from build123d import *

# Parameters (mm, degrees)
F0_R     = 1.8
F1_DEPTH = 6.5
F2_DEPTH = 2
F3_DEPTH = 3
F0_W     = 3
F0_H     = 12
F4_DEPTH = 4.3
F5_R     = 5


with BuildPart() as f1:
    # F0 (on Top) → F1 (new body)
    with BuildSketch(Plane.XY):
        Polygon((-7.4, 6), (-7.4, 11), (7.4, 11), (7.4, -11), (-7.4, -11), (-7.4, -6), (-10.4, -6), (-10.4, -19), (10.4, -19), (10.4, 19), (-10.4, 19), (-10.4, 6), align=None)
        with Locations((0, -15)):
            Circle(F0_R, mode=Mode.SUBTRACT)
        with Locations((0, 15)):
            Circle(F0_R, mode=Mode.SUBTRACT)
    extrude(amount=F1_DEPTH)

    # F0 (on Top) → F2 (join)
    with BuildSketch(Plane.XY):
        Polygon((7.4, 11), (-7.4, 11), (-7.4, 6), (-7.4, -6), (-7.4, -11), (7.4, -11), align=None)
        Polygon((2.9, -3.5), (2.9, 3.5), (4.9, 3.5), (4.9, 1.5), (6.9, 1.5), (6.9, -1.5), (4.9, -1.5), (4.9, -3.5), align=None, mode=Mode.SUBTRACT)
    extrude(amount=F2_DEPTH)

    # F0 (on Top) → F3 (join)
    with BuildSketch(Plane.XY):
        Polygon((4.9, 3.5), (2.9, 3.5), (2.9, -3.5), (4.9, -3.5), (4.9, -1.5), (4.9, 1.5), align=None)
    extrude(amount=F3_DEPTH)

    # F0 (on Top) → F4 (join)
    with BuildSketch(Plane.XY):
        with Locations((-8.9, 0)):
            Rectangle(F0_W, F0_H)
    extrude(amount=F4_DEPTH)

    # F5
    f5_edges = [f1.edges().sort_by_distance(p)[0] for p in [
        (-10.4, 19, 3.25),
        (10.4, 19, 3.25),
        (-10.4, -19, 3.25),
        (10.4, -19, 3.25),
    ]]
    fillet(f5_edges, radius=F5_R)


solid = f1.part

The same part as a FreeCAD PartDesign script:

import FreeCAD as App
import Part
import Sketcher

V = App.Vector
Q = App.Units.Quantity


def edges_at(feature, points):
    """Names of the edges that pass closest to the given points."""
    edges = feature.Shape.Edges
    near = lambda p: min(range(len(edges)), key=lambda i: edges[i].distToShape(Part.Vertex(*p))[0])
    return sorted({f"Edge{near(p) + 1}" for p in points})


def add_polygon(sketch, points):
    """Adds a closed chain of lines whose ends are joined by coincident constraints."""
    first, n = sketch.GeometryCount, len(points)
    for a, b in zip(points, points[1:] + points[:1]):
        sketch.addGeometry(Part.LineSegment(App.Vector(*a, 0), App.Vector(*b, 0)), False)
    for i in range(n):
        sketch.addConstraint(Sketcher.Constraint("Coincident", first + i, 2, first + (i + 1) % n, 1))

doc = App.newDocument("Part")
body = doc.addObject("PartDesign::Body", "Body")

# Sketch on XY plane
sketch1 = body.newObject("Sketcher::SketchObject", "Sketch")
sketch1.AttachmentSupport = (doc.getObject("XY_Plane"), [""])
sketch1.MapMode = "FlatFace"
add_polygon(sketch1, [(-7.4, 6), (-7.4, 11), (7.4, 11), (7.4, -11), (-7.4, -11), (-7.4, -6), (-10.4, -6), (-10.4, -19), (10.4, -19), (10.4, 19), (-10.4, 19), (-10.4, 6)])  # lines 0-11
sketch1.addGeometry(Part.Circle(V(0, -15, 0), V(0, 0, 1), 1.8), False)  # 12
sketch1.addGeometry(Part.Circle(V(0, 15, 0), V(0, 0, 1), 1.8), False)  # 13
sketch1.addConstraint([
    Sketcher.Constraint("Vertical", 0),
    Sketcher.Constraint("Horizontal", 1),
    Sketcher.Constraint("Vertical", 2),
    Sketcher.Constraint("Horizontal", 3),
    Sketcher.Constraint("Vertical", 4),
    Sketcher.Constraint("Horizontal", 5),
    Sketcher.Constraint("Vertical", 6),
    Sketcher.Constraint("Horizontal", 7),
    Sketcher.Constraint("Vertical", 8),
    Sketcher.Constraint("Horizontal", 9),
    Sketcher.Constraint("Vertical", 10),
    Sketcher.Constraint("Horizontal", 11),
    Sketcher.Constraint("Equal", 12, 13),
    Sketcher.Constraint("Symmetric", 12, 3, 13, 3, -1, 1),
    Sketcher.Constraint("Symmetric", 0, 2, 2, 2, -1, 1),
    Sketcher.Constraint("Symmetric", 6, 2, 8, 2, -1, 1),
    Sketcher.Constraint("Symmetric", 5, 2, 10, 2, -1),
    Sketcher.Constraint("PointOnObject", 12, 3, -2),
    Sketcher.Constraint("Vertical", 0, 2, 3, 2),
    Sketcher.Constraint("Diameter", 12, Q("3.6 mm")),
    Sketcher.Constraint("DistanceX", 5, 2, 5, 1, Q("3 mm")),
    Sketcher.Constraint("DistanceY", 0, 1, 0, 2, Q("5 mm")),
    Sketcher.Constraint("DistanceY", 2, 2, 2, 1, Q("22 mm")),
    Sketcher.Constraint("DistanceY", 6, 2, 6, 1, Q("13 mm")),
    Sketcher.Constraint("DistanceX", 1, 1, 1, 2, Q("14.8 mm")),
    Sketcher.Constraint("DistanceY", 12, 3, -1, 1, Q("15 mm")),
])
pad1 = body.newObject("PartDesign::Pad", "Pad")
pad1.Profile = sketch1
pad1.Length = 6.5

# Sketch on XY plane
sketch2 = body.newObject("Sketcher::SketchObject", "Sketch001")
sketch2.AttachmentSupport = (doc.getObject("XY_Plane"), [""])
sketch2.MapMode = "FlatFace"
add_polygon(sketch2, [(7.4, 11), (-7.4, 11), (-7.4, -11), (7.4, -11)])  # lines 0-3
add_polygon(sketch2, [(4.9, -3.5), (2.9, -3.5), (2.9, 3.5), (4.9, 3.5), (4.9, 1.5), (6.9, 1.5), (6.9, -1.5), (4.9, -1.5)])  # lines 4-11
sketch2.addConstraint([
    Sketcher.Constraint("Horizontal", 0),
    Sketcher.Constraint("Vertical", 1),
    Sketcher.Constraint("Horizontal", 2),
    Sketcher.Constraint("Vertical", 3),
    Sketcher.Constraint("Horizontal", 4),
    Sketcher.Constraint("Vertical", 5),
    Sketcher.Constraint("Horizontal", 6),
    Sketcher.Constraint("Vertical", 7),
    Sketcher.Constraint("Horizontal", 8),
    Sketcher.Constraint("Vertical", 9),
    Sketcher.Constraint("Horizontal", 10),
    Sketcher.Constraint("Vertical", 11),
    Sketcher.Constraint("Symmetric", 0, 2, 2, 2, -1, 1),
    Sketcher.Constraint("Symmetric", 7, 2, 10, 2, -1),
    Sketcher.Constraint("Equal", 6, 8),
    Sketcher.Constraint("Equal", 10, 7),
    Sketcher.Constraint("Equal", 7, 11),
    Sketcher.Constraint("DistanceX", 4, 2, 4, 1, Q("2 mm")),
    Sketcher.Constraint("DistanceY", 1, 2, 1, 1, Q("22 mm")),
    Sketcher.Constraint("DistanceY", 5, 1, 5, 2, Q("7 mm")),
    Sketcher.Constraint("DistanceX", 0, 2, 0, 1, Q("14.8 mm")),
    Sketcher.Constraint("DistanceX", -1, 1, 4, 2, Q("2.9 mm")),
])
pad2 = body.newObject("PartDesign::Pad", "Pad001")
pad2.Profile = sketch2
pad2.Length = 2

# Sketch on XY plane
sketch3 = body.newObject("Sketcher::SketchObject", "Sketch002")
sketch3.AttachmentSupport = (doc.getObject("XY_Plane"), [""])
sketch3.MapMode = "FlatFace"
add_polygon(sketch3, [(4.9, 3.5), (2.9, 3.5), (2.9, -3.5), (4.9, -3.5)])  # lines 0-3
sketch3.addConstraint([
    Sketcher.Constraint("Horizontal", 0),
    Sketcher.Constraint("Vertical", 1),
    Sketcher.Constraint("Horizontal", 2),
    Sketcher.Constraint("Vertical", 3),
    Sketcher.Constraint("DistanceX", 0, 2, 0, 1, Q("2 mm")),
    Sketcher.Constraint("DistanceY", 1, 2, 1, 1, Q("7 mm")),
    Sketcher.Constraint("DistanceX", -1, 1, 0, 2, Q("2.9 mm")),
    Sketcher.Constraint("DistanceY", -1, 1, 0, 2, Q("3.5 mm")),
])
pad3 = body.newObject("PartDesign::Pad", "Pad002")
pad3.Profile = sketch3
pad3.Length = 3

# Sketch on XY plane
sketch4 = body.newObject("Sketcher::SketchObject", "Sketch003")
sketch4.AttachmentSupport = (doc.getObject("XY_Plane"), [""])
sketch4.MapMode = "FlatFace"
add_polygon(sketch4, [(-10.4, 6), (-10.4, -6), (-7.4, -6), (-7.4, 6)])  # lines 0-3
sketch4.addConstraint([
    Sketcher.Constraint("Vertical", 0),
    Sketcher.Constraint("Horizontal", 1),
    Sketcher.Constraint("Vertical", 2),
    Sketcher.Constraint("Horizontal", 3),
    Sketcher.Constraint("DistanceX", 1, 1, 1, 2, Q("3 mm")),
    Sketcher.Constraint("DistanceY", 0, 2, 0, 1, Q("12 mm")),
    Sketcher.Constraint("DistanceY", 0, 2, -1, 1, Q("6 mm")),
    Sketcher.Constraint("DistanceX", 0, 2, -1, 1, Q("10.4 mm")),
])
pad4 = body.newObject("PartDesign::Pad", "Pad003")
pad4.Profile = sketch4
pad4.Length = 4.3
doc.recompute()

fillet = body.newObject("PartDesign::Fillet", "Fillet")
fillet.Base = (pad4, edges_at(pad4, [
    (-10.4, 19, 3.25),
    (10.4, 19, 3.25),
    (-10.4, -19, 3.25),
    (10.4, -19, 3.25),
]))
fillet.Radius = 5

doc.recompute()
